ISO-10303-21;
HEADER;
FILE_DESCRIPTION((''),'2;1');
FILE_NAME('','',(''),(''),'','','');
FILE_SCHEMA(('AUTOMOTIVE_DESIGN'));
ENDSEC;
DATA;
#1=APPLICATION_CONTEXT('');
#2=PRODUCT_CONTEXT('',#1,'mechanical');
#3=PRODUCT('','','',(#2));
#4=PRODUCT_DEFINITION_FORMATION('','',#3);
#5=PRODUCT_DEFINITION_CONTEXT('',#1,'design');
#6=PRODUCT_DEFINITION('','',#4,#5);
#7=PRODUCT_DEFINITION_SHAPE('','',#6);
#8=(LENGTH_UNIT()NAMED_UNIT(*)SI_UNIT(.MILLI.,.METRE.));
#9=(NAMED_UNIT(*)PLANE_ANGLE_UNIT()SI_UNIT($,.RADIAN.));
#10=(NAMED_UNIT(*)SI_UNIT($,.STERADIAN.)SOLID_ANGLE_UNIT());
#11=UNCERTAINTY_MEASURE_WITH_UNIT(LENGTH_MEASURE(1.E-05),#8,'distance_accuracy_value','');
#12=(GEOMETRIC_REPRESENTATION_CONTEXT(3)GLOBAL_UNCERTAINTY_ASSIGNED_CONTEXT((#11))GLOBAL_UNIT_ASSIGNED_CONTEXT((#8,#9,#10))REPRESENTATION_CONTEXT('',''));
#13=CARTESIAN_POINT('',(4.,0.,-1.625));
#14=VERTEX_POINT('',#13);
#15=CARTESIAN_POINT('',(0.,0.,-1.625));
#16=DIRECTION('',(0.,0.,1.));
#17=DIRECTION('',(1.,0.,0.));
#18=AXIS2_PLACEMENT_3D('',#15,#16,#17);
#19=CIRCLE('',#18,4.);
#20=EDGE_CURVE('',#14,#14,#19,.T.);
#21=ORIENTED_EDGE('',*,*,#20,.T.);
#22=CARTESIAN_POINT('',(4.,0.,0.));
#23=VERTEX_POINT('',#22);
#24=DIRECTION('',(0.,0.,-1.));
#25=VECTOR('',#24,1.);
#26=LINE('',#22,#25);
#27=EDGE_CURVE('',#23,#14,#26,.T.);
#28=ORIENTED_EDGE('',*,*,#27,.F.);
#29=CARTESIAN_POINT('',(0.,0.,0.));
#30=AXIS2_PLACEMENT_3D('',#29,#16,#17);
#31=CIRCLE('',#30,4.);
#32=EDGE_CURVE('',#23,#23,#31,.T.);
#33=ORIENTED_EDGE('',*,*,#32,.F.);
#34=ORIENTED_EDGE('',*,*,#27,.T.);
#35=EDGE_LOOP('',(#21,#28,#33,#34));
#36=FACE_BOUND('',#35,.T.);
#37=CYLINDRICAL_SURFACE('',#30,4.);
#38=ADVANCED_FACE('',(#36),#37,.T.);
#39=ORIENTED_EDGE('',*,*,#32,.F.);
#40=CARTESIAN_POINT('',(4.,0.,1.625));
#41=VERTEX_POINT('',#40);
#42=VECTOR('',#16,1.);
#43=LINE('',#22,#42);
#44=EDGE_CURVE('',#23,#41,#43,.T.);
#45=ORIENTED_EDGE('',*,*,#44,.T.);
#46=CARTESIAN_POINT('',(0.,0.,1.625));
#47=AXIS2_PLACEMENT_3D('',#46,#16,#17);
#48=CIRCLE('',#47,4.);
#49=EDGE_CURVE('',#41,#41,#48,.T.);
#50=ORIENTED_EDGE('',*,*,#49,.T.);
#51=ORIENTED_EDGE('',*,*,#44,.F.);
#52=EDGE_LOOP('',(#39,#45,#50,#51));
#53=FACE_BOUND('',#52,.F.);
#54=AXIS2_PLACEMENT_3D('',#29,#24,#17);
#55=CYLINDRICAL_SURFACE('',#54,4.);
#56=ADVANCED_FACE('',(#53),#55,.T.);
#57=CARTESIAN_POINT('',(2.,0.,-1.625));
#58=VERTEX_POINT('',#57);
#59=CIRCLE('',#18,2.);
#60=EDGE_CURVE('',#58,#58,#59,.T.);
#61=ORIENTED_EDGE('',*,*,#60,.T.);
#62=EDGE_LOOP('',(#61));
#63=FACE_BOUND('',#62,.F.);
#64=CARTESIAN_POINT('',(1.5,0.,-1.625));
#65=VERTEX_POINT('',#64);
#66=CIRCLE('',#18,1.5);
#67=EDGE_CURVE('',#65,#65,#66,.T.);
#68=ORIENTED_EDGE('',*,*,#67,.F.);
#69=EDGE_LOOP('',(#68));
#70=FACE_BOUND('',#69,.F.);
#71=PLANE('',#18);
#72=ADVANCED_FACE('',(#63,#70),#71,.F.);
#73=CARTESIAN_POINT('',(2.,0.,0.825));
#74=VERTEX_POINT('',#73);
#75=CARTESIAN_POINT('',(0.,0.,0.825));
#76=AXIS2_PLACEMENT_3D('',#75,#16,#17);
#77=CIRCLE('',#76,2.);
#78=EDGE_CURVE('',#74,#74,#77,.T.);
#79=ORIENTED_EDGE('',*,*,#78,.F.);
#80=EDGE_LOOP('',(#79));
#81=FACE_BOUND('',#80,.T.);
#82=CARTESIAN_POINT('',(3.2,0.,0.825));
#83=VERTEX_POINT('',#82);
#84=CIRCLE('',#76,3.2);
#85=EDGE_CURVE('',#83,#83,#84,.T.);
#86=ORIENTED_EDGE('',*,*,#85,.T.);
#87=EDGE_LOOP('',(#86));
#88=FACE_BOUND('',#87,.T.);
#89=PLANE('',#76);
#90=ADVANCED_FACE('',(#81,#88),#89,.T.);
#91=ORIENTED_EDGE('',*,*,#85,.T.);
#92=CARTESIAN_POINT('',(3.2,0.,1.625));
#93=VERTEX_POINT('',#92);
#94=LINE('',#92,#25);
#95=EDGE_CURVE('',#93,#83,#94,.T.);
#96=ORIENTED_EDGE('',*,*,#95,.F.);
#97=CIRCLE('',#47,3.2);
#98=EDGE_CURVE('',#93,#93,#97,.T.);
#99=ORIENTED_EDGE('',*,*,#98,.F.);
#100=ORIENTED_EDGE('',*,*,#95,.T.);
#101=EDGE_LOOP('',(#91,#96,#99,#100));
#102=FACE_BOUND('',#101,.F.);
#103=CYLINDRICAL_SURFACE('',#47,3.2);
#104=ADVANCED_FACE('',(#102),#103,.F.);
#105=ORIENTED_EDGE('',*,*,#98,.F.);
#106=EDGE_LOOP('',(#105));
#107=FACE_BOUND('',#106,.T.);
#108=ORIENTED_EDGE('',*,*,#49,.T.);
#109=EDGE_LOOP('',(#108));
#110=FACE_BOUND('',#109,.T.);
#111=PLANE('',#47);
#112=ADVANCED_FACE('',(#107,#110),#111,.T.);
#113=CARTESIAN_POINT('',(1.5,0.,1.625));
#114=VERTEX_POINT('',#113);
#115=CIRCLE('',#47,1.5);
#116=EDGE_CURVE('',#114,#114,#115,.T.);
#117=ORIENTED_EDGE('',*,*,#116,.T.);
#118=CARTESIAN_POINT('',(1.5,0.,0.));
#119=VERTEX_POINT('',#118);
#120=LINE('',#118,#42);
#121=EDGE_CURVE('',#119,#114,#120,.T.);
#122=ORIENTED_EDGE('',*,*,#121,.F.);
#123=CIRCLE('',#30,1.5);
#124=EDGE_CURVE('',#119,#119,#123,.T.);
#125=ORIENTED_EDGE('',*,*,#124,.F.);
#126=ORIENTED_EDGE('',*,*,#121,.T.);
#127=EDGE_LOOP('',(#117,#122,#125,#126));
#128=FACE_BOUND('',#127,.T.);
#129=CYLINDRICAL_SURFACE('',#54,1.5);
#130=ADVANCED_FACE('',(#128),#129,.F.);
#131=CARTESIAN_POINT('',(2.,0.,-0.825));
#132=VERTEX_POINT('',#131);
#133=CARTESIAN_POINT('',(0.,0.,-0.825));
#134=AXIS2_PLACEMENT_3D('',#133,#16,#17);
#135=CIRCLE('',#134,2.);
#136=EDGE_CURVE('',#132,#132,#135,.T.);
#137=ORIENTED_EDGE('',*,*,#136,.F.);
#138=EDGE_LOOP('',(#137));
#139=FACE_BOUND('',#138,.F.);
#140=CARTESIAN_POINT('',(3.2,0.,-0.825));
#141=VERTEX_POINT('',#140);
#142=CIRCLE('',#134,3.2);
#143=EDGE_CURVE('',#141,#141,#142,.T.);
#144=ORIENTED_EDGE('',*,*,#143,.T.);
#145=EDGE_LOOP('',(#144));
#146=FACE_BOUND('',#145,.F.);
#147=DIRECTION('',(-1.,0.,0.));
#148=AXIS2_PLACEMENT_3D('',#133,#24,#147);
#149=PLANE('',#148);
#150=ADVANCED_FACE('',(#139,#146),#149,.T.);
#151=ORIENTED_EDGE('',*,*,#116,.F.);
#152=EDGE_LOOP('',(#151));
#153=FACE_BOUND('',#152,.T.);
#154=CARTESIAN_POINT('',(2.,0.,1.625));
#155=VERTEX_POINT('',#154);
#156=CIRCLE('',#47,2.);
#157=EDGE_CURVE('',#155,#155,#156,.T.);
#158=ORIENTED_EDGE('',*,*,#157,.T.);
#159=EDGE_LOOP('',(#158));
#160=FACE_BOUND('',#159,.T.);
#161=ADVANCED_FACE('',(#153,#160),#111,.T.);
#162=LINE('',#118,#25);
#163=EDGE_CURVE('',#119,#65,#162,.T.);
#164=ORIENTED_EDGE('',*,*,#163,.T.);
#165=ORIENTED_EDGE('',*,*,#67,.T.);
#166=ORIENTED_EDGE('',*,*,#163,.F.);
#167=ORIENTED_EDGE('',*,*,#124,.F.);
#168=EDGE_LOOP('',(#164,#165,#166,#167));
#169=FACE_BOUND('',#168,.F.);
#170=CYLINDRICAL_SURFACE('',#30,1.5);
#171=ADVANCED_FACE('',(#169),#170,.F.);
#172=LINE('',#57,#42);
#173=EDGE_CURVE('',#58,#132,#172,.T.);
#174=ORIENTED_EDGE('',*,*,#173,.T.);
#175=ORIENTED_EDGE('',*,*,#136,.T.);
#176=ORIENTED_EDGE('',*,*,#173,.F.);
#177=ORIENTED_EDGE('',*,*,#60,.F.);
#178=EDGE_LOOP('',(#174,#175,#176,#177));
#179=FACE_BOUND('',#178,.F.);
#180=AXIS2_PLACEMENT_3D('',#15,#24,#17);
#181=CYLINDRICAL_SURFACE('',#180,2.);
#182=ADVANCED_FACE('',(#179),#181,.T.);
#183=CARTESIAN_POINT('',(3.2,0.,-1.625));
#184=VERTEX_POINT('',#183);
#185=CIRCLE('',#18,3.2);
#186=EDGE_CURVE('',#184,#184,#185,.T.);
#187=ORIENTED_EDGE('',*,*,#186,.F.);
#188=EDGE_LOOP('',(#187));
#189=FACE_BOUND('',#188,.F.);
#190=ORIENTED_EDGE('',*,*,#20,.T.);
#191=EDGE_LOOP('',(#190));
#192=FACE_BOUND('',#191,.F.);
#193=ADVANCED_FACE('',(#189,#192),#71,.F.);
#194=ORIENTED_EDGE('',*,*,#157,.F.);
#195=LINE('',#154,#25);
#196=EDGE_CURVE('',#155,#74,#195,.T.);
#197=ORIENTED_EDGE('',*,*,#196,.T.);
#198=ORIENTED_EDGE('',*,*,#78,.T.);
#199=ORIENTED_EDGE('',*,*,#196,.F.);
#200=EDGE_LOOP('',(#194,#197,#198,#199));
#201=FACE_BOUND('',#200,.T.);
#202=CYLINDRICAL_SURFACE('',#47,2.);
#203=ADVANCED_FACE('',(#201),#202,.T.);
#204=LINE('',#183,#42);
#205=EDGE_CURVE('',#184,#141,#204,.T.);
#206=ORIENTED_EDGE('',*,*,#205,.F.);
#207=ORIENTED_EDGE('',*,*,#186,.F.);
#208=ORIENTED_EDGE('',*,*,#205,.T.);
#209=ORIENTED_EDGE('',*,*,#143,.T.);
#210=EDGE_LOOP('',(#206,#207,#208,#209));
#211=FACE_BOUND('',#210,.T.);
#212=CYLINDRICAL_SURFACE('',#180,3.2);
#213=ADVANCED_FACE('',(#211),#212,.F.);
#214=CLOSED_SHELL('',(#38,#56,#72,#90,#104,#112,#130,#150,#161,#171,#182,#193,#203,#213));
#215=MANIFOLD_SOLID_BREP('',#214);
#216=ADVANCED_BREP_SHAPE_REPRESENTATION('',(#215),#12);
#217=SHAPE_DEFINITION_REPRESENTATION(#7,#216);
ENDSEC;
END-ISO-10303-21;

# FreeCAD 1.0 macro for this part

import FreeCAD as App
import Part
import Sketcher
from FreeCAD import Vector

doc = App.newDocument("Part")
body = doc.addObject("PartDesign::Body", "Body")

# Sketch on XY plane
sketch1 = body.newObject("Sketcher::SketchObject", "Sketch")
sketch1.AttachmentSupport = (doc.getObject("XY_Plane"), [""])
sketch1.MapMode = "FlatFace"
sketch1.addGeometry(Part.Circle(Vector(0, 0, 0), Vector(0, 0, 1), 4), False)
sketch1.addGeometry(Part.Circle(Vector(0, 0, 0), Vector(0, 0, 1), 1.5), False)
sketch1.addConstraint(Sketcher.Constraint("Coincident", 0, 3, -1, 1))
sketch1.addConstraint(Sketcher.Constraint("Coincident", 1, 3, -1, 1))
sketch1.addConstraint(Sketcher.Constraint("Diameter", 0, 8.0))
sketch1.addConstraint(Sketcher.Constraint("Diameter", 1, 3.0))
pad1 = body.newObject("PartDesign::Pad", "Pad")
pad1.Profile = sketch1
pad1.Length = 3.25
pad1.Midplane = True

# Sketch on XY plane
sketch2 = body.newObject("Sketcher::SketchObject", "Sketch001")
sketch2.AttachmentSupport = (doc.getObject("XY_Plane"), [""])
sketch2.MapMode = "FlatFace"
sketch2.AttachmentOffset = App.Placement(Vector(0, 0, 1.625), App.Rotation())
sketch2.addGeometry(Part.Circle(Vector(0, 0, 0), Vector(0, 0, 1), 3.2), False)
sketch2.addGeometry(Part.Circle(Vector(0, 0, 0), Vector(0, 0, 1), 2), False)
sketch2.addConstraint(Sketcher.Constraint("Coincident", 0, 3, -1, 1))
sketch2.addConstraint(Sketcher.Constraint("Coincident", 1, 3, -1, 1))
sketch2.addConstraint(Sketcher.Constraint("Diameter", 1, 4.0))
sketch2.addConstraint(Sketcher.Constraint("Diameter", 0, 6.4))
pocket1 = body.newObject("PartDesign::Pocket", "Pocket")
pocket1.Profile = sketch2
pocket1.Length = 0.8
doc.recompute()

mirrored = body.newObject("PartDesign::Mirrored", "Mirrored")
mirrored.Originals = [pocket1]
mirrored.MirrorPlane = (doc.getObject("XY_Plane"), [""])
body.Tip = mirrored

doc.recompute()
